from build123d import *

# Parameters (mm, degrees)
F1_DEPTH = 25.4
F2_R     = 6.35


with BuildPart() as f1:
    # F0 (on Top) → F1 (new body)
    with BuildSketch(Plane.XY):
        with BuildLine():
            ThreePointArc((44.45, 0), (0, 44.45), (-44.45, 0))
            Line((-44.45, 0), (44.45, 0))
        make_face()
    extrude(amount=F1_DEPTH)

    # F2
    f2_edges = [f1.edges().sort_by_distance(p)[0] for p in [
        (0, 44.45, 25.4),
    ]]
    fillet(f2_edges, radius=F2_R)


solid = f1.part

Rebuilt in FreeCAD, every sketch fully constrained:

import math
import FreeCAD as App
import Part
import Sketcher
from FreeCAD import Vector
Q = App.Units.Quantity


def edges_at(feature, points):
    """Names of the edges that pass closest to the given points."""
    edges = feature.Shape.Edges
    near = lambda p: min(range(len(edges)), key=lambda i: edges[i].distToShape(Part.Vertex(*p))[0])
    return sorted({f"Edge{near(p) + 1}" for p in points})

doc = App.newDocument("Part")
params = doc.addObject("Spreadsheet::Sheet", "Params")
for row, (alias, value) in enumerate([
    ("sketch1_radius", "1.75 in"),
    ("pad1_length", "1 in"),
    ("fillet_radius", "0.25 in"),
], start=1):
    params.set(f"A{row}", alias)
    params.set(f"B{row}", "=" + value)
    params.setAlias(f"B{row}", alias)

body = doc.addObject("PartDesign::Body", "Body")

sketch1 = doc.addObject("Sketcher::SketchObject", "Sketch")
body.addObject(sketch1)
sketch1.AttachmentSupport = (doc.XY_Plane, [""])
sketch1.MapMode = "FlatFace"
sketch1.addGeometry([
    Part.ArcOfCircle(Part.Circle(Vector(0, 0, 0), Vector(0, 0, 1), 44), math.radians(0), math.radians(180)),
    Part.LineSegment(Vector(-44, 0, 0), Vector(44, 0, 0)),
], False)
sketch1.addConstraint([
    Sketcher.Constraint("Coincident", 0, 1, 1, 2),
    Sketcher.Constraint("Coincident", 1, 1, 0, 2),
    Sketcher.Constraint("Horizontal", 1),
    Sketcher.Constraint("Coincident", 0, 3, -1, 1),
    Sketcher.Constraint("PointOnObject", 0, 1, -1),
    Sketcher.Constraint("Radius", 0, Q("1.75 in")),
])
sketch1.setExpression("Constraints[5]", "Params.sketch1_radius")
pad1 = doc.addObject("PartDesign::Pad", "Pad")
body.addObject(pad1)
pad1.Profile = sketch1
pad1.setExpression("Length", "Params.pad1_length")
doc.recompute()

fillet = doc.addObject("PartDesign::Fillet", "Fillet")
body.addObject(fillet)
fillet.Base = (pad1, edges_at(pad1, [(0, 44.45, 25.4)]))
fillet.setExpression("Radius", "Params.fillet_radius")

doc.recompute()
